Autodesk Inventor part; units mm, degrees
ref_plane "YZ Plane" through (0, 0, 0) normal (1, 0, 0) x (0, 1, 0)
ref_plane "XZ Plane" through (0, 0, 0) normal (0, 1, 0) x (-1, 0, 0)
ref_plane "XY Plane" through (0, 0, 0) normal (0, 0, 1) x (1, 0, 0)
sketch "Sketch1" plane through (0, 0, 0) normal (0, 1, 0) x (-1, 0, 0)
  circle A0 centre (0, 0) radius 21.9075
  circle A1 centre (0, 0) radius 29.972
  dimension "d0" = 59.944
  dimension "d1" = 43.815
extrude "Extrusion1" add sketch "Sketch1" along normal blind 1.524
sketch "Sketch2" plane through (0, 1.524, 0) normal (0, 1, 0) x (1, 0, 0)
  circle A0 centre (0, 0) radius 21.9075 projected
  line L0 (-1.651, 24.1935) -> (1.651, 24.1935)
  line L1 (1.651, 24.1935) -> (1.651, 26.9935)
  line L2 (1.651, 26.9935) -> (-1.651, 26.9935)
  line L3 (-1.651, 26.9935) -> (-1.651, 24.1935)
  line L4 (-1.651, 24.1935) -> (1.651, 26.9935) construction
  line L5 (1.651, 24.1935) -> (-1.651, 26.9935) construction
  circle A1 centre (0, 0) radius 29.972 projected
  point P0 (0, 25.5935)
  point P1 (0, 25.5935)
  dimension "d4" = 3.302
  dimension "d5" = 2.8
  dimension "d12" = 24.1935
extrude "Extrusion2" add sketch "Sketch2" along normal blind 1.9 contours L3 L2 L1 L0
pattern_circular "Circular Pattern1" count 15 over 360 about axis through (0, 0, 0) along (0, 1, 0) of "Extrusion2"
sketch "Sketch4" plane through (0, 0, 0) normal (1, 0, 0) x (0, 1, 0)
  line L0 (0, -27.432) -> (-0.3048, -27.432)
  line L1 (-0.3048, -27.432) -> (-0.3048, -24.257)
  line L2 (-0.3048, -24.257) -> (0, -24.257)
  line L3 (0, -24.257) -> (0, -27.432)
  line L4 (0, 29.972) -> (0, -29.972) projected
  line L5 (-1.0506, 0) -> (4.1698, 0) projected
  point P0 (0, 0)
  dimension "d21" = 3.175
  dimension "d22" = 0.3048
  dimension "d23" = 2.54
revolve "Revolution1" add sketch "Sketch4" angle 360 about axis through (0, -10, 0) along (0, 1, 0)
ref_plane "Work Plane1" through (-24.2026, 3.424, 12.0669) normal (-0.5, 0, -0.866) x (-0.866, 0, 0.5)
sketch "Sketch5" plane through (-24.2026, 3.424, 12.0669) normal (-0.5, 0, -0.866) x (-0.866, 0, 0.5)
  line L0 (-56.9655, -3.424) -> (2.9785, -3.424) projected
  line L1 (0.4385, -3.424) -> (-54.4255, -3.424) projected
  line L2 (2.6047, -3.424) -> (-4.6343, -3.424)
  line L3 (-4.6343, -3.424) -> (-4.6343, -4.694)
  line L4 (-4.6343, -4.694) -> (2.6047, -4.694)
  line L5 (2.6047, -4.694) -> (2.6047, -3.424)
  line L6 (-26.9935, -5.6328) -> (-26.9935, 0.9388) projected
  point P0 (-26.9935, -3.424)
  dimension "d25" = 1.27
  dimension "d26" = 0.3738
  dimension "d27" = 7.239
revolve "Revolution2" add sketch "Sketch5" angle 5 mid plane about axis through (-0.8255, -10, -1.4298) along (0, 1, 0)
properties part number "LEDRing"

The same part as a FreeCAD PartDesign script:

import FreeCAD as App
import Part
import Sketcher
Q = App.Units.Quantity

doc = App.newDocument("Part")
body = doc.addObject("PartDesign::Body", "Body")

# Sketch on XZ plane
sketch1 = body.newObject("Sketcher::SketchObject", "Sketch")
sketch1.AttachmentSupport = (doc.getObject("XZ_Plane"), [""])
sketch1.MapMode = "FlatFace"
sketch1.addGeometry(Part.Circle(App.Vector(0, 0, 0), App.Vector(0, 0, 1), 30), False)
sketch1.addGeometry(Part.Circle(App.Vector(0, 0, 0), App.Vector(0, 0, 1), 22), False)
sketch1.addConstraint(Sketcher.Constraint("Coincident", 0, 3, -1, 1))
sketch1.addConstraint(Sketcher.Constraint("Coincident", 1, 3, -1, 1))
sketch1.addConstraint(Sketcher.Constraint("Diameter", 0, Q("2.36 in")))
sketch1.addConstraint(Sketcher.Constraint("Diameter", 1, Q("1.725 in")))
pad1 = body.newObject("PartDesign::Pad", "Pad")
pad1.Profile = sketch1
pad1.Length = Q("0.06 in")
pad1.Reversed = True

# Sketch on XZ plane
sketch2 = body.newObject("Sketcher::SketchObject", "Sketch001")
sketch2.AttachmentSupport = (doc.getObject("XZ_Plane"), [""])
sketch2.MapMode = "FlatFace"
sketch2.AttachmentOffset = App.Placement(App.Vector(0, 0, -0.06 * 25.4), App.Rotation())
sketch2.addGeometry(Part.LineSegment(App.Vector(-1.7, -27, 0), App.Vector(-1.7, -24.2, 0)), False)
sketch2.addGeometry(Part.LineSegment(App.Vector(-1.7, -24.2, 0), App.Vector(1.7, -24.2, 0)), False)
sketch2.addGeometry(Part.LineSegment(App.Vector(1.7, -24.2, 0), App.Vector(1.7, -27, 0)), False)
sketch2.addGeometry(Part.LineSegment(App.Vector(1.7, -27, 0), App.Vector(-1.7, -27, 0)), False)
sketch2.addConstraint(Sketcher.Constraint("Coincident", 0, 2, 1, 1))
sketch2.addConstraint(Sketcher.Constraint("Coincident", 1, 2, 2, 1))
sketch2.addConstraint(Sketcher.Constraint("Coincident", 2, 2, 3, 1))
sketch2.addConstraint(Sketcher.Constraint("Coincident", 3, 2, 0, 1))
sketch2.addConstraint(Sketcher.Constraint("Vertical", 0))
sketch2.addConstraint(Sketcher.Constraint("Horizontal", 1))
sketch2.addConstraint(Sketcher.Constraint("Vertical", 2))
sketch2.addConstraint(Sketcher.Constraint("Horizontal", 3))
sketch2.addConstraint(Sketcher.Constraint("DistanceX", 1, 1, 1, 2, Q("0.13 in")))
sketch2.addConstraint(Sketcher.Constraint("DistanceY", 0, 1, 0, 2, 2.8))
sketch2.addConstraint(Sketcher.Constraint("DistanceY", 0, 2, -1, 1, Q("0.9525 in")))
sketch2.addConstraint(Sketcher.Constraint("DistanceX", 0, 2, -1, 1, Q("0.065 in")))
pad2 = body.newObject("PartDesign::Pad", "Pad001")
pad2.Profile = sketch2
pad2.Length = Q("0.0748031 in")
pad2.Reversed = True
doc.recompute()

polarpattern = body.newObject("PartDesign::PolarPattern", "PolarPattern")
polarpattern.Originals = [pad2]
polarpattern.Axis = (doc.getObject("Y_Axis"), [""])
polarpattern.Angle = 360
polarpattern.Occurrences = 15
body.Tip = polarpattern

# Sketch on YZ plane
sketch3 = body.newObject("Sketcher::SketchObject", "Sketch002")
sketch3.AttachmentSupport = (doc.getObject("YZ_Plane"), [""])
sketch3.MapMode = "FlatFace"
sketch3.addGeometry(Part.LineSegment(App.Vector(-0.3, -27.43, 0), App.Vector(0, -27.43, 0)), False)
sketch3.addGeometry(Part.LineSegment(App.Vector(0, -27.43, 0), App.Vector(0, -24.26, 0)), False)
sketch3.addGeometry(Part.LineSegment(App.Vector(0, -24.26, 0), App.Vector(-0.3, -24.26, 0)), False)
sketch3.addGeometry(Part.LineSegment(App.Vector(-0.3, -24.26, 0), App.Vector(-0.3, -27.43, 0)), False)
sketch3.addConstraint(Sketcher.Constraint("Coincident", 0, 2, 1, 1))
sketch3.addConstraint(Sketcher.Constraint("Coincident", 1, 2, 2, 1))
sketch3.addConstraint(Sketcher.Constraint("Coincident", 2, 2, 3, 1))
sketch3.addConstraint(Sketcher.Constraint("Coincident", 3, 2, 0, 1))
sketch3.addConstraint(Sketcher.Constraint("Horizontal", 0))
sketch3.addConstraint(Sketcher.Constraint("Vertical", 1))
sketch3.addConstraint(Sketcher.Constraint("Horizontal", 2))
sketch3.addConstraint(Sketcher.Constraint("Vertical", 3))
sketch3.addConstraint(Sketcher.Constraint("PointOnObject", 0, 2, -2))
sketch3.addConstraint(Sketcher.Constraint("DistanceX", 0, 1, 0, 2, Q("0.012 in")))
sketch3.addConstraint(Sketcher.Constraint("DistanceY", 1, 1, 1, 2, Q("0.125 in")))
sketch3.addConstraint(Sketcher.Constraint("DistanceY", 0, 2, -1, 1, Q("1.08 in")))
revolution = body.newObject("PartDesign::Revolution", "Revolution")
revolution.Profile = sketch3
revolution.ReferenceAxis = (sketch3, ["H_Axis"])
revolution.Angle = 360

# Sketch on an angled plane
sketch4 = body.newObject("Sketcher::SketchObject", "Sketch003")
sketch4.Placement = App.Placement(App.Vector(-24.2026, 3.424, 12.0669), App.Rotation(App.Vector(-0.866025404, 0, 0.5), App.Vector(0, 1, 0), App.Vector(-0.5, 0, -0.866025404), "ZXY"))
sketch4.addGeometry(Part.LineSegment(App.Vector(2.6, -3.4, 0), App.Vector(-4.6, -3.4, 0)), False)
sketch4.addGeometry(Part.LineSegment(App.Vector(-4.6, -3.4, 0), App.Vector(-4.6, -4.7, 0)), False)
sketch4.addGeometry(Part.LineSegment(App.Vector(-4.6, -4.7, 0), App.Vector(2.6, -4.7, 0)), False)
sketch4.addGeometry(Part.LineSegment(App.Vector(2.6, -4.7, 0), App.Vector(2.6, -3.4, 0)), False)
sketch4.addGeometry(Part.LineSegment(App.Vector(-27, -4.7, 0), App.Vector(-27, -3.4, 0)), True)  # axis
sketch4.addConstraint(Sketcher.Constraint("Coincident", 0, 2, 1, 1))
sketch4.addConstraint(Sketcher.Constraint("Coincident", 1, 2, 2, 1))
sketch4.addConstraint(Sketcher.Constraint("Coincident", 2, 2, 3, 1))
sketch4.addConstraint(Sketcher.Constraint("Coincident", 3, 2, 0, 1))
sketch4.addConstraint(Sketcher.Constraint("Horizontal", 0))
sketch4.addConstraint(Sketcher.Constraint("Vertical", 1))
sketch4.addConstraint(Sketcher.Constraint("Horizontal", 2))
sketch4.addConstraint(Sketcher.Constraint("Vertical", 3))
sketch4.addConstraint(Sketcher.Constraint("Vertical", 4))
sketch4.addConstraint(Sketcher.Constraint("Horizontal", 2, 2, 4, 1))
sketch4.addConstraint(Sketcher.Constraint("Horizontal", 3, 2, 4, 2))
sketch4.addConstraint(Sketcher.Constraint("DistanceY", 1, 2, 1, 1, Q("0.05 in")))
sketch4.addConstraint(Sketcher.Constraint("DistanceX", 0, 2, 0, 1, Q("0.285 in")))
sketch4.addConstraint(Sketcher.Constraint("DistanceY", 0, 2, -1, 1, Q("0.1348 in")))
sketch4.addConstraint(Sketcher.Constraint("DistanceX", 0, 2, -1, 1, 4.6343))
sketch4.addConstraint(Sketcher.Constraint("DistanceX", 4, 1, -1, 1, 26.9935))
revolution2 = body.newObject("PartDesign::Revolution", "Revolution001")
revolution2.Profile = sketch4
revolution2.ReferenceAxis = (sketch4, ["Axis0"])
revolution2.Angle = 5
revolution2.Midplane = True

doc.recompute()
